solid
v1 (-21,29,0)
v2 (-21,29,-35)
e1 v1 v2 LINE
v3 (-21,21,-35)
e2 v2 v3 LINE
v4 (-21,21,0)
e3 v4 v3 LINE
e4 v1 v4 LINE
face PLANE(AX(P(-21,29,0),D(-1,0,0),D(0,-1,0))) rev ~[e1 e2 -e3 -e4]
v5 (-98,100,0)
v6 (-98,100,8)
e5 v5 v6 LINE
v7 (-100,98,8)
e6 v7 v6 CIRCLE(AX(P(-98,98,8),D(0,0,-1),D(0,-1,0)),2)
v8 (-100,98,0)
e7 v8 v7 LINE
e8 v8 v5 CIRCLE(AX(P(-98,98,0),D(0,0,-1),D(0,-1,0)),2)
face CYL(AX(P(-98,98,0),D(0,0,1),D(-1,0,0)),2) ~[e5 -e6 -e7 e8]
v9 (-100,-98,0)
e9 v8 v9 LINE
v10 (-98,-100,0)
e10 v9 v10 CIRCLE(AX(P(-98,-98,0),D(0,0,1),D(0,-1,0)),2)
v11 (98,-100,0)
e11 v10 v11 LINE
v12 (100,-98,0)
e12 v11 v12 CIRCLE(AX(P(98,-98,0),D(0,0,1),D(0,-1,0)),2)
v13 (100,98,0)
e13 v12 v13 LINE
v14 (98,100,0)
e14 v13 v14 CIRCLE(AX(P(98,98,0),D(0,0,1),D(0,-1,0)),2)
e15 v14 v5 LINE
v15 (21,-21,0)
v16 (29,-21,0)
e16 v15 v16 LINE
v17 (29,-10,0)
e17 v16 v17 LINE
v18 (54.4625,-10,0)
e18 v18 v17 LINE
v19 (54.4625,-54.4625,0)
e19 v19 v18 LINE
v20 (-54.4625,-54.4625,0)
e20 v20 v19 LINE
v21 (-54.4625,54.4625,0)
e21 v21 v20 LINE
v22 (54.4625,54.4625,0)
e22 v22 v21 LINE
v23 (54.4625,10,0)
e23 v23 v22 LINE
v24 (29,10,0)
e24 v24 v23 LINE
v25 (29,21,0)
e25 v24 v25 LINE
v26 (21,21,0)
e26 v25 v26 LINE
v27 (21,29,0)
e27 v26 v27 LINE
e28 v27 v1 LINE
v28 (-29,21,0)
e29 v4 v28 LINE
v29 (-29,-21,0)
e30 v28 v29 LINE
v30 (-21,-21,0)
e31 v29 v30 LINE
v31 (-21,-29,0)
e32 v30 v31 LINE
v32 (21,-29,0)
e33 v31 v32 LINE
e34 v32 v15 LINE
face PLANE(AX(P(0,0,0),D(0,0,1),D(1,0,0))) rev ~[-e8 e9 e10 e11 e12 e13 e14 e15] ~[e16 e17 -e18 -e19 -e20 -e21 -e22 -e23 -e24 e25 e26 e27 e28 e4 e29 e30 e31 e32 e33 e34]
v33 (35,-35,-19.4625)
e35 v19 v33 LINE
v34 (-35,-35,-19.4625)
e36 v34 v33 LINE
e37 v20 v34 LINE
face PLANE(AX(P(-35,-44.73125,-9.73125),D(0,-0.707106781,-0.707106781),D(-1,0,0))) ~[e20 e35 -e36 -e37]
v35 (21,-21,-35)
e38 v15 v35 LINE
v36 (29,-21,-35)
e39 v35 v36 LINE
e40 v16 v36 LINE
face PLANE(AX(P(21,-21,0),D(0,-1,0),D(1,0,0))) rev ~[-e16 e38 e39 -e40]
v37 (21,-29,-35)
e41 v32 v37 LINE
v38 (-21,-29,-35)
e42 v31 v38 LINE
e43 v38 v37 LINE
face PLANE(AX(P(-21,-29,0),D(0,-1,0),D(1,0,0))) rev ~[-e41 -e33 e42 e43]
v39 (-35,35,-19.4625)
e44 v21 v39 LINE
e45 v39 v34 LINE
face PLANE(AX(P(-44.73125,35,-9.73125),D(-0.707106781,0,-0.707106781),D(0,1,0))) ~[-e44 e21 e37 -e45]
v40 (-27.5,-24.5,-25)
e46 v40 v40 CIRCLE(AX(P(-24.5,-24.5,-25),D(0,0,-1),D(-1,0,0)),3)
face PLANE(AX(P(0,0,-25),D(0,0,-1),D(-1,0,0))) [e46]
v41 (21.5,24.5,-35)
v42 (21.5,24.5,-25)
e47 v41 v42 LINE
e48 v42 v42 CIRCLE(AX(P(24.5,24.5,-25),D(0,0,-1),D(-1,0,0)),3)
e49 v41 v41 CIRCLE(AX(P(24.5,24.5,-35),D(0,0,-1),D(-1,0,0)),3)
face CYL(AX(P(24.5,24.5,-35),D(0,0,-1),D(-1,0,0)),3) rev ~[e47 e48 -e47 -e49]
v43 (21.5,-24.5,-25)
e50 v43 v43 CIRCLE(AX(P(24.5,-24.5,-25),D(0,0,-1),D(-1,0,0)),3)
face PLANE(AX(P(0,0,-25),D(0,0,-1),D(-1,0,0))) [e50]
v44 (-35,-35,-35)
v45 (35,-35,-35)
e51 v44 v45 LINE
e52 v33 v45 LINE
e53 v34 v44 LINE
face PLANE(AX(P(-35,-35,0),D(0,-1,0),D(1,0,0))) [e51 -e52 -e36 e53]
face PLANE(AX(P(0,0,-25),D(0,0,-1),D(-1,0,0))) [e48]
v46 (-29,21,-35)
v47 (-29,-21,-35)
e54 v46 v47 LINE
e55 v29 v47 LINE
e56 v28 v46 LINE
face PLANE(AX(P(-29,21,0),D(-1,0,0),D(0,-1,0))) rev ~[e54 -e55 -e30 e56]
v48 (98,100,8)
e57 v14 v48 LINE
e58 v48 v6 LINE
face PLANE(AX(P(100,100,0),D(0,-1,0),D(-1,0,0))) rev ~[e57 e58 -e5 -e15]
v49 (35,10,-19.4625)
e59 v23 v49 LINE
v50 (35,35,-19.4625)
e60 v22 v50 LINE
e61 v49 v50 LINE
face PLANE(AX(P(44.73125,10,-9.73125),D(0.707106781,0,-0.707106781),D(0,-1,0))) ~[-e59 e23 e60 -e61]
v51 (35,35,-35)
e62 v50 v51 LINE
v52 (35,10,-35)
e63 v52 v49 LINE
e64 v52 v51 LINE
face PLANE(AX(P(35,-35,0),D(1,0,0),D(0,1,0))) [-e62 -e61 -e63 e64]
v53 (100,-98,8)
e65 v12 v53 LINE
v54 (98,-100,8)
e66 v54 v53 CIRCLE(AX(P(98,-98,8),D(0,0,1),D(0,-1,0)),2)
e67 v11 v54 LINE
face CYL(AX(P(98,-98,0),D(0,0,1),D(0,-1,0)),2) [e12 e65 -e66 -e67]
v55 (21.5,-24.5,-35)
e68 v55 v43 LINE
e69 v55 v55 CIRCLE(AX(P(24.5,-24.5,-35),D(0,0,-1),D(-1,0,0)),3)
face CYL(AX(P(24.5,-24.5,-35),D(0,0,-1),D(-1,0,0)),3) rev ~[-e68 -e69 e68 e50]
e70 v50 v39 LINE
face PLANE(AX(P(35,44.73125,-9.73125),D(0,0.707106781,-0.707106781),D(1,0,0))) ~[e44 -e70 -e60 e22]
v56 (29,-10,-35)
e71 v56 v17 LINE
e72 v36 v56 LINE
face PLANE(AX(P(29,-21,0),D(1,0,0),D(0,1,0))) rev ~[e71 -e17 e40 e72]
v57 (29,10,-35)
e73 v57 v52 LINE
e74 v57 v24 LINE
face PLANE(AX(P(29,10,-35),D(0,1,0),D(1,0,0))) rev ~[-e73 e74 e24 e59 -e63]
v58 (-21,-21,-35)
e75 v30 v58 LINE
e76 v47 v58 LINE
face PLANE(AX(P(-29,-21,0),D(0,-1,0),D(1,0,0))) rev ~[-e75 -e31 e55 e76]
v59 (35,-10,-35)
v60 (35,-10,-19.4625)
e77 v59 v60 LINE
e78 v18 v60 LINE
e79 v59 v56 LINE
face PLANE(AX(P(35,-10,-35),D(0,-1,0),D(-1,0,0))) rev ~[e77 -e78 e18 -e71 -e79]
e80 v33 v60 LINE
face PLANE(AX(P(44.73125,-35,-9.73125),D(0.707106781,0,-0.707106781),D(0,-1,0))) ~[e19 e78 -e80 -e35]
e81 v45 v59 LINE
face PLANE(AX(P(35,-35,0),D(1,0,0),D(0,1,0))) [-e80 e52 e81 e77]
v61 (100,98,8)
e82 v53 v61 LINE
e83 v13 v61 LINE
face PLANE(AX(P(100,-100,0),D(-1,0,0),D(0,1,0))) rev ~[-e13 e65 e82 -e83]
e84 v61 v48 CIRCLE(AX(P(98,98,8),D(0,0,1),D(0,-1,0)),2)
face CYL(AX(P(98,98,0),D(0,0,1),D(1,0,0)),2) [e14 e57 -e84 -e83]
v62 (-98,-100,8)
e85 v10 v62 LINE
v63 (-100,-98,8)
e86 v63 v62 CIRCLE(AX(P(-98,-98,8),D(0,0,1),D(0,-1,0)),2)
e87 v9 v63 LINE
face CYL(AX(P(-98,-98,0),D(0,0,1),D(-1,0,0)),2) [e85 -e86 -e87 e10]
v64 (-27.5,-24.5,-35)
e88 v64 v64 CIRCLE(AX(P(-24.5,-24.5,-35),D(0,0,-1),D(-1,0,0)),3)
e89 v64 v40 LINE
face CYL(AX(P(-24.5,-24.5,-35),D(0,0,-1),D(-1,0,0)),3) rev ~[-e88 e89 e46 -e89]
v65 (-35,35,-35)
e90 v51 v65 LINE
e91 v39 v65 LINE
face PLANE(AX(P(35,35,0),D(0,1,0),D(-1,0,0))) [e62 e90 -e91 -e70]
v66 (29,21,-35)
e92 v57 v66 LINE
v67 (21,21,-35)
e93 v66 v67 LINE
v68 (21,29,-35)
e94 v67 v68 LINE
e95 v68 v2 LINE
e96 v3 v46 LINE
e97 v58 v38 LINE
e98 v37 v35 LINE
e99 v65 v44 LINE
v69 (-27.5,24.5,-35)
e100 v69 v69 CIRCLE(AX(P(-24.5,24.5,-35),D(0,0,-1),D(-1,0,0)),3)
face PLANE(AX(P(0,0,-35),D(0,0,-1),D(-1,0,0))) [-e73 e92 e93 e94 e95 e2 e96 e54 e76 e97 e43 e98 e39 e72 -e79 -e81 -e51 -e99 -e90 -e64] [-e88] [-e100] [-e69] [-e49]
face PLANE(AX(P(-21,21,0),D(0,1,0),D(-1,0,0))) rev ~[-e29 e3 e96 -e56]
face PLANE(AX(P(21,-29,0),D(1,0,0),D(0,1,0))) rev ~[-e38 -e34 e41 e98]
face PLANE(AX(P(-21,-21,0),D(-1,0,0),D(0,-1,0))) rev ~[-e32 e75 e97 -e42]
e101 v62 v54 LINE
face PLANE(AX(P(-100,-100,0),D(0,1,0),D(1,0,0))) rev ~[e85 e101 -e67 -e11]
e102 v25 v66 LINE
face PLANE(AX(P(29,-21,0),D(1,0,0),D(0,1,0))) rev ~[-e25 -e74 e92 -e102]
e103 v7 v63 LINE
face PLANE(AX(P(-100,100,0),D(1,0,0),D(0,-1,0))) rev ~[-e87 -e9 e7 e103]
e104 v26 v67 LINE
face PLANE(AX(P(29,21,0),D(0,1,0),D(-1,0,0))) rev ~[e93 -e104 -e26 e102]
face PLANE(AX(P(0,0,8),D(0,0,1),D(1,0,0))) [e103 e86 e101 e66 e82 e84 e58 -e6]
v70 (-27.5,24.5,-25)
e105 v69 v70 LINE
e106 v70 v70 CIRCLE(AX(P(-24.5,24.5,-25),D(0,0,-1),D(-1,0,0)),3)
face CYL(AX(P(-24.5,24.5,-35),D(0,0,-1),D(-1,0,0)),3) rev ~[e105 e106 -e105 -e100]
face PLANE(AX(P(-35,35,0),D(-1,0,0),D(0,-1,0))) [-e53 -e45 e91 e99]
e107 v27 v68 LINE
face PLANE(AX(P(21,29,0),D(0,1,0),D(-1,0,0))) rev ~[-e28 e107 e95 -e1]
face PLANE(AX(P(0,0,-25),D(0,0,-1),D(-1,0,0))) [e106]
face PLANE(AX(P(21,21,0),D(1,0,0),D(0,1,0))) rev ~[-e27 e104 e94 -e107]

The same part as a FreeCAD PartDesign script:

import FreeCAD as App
import Part
import Sketcher


def edges_at(feature, points):
    """Names of the edges that pass closest to the given points."""
    edges = feature.Shape.Edges
    near = lambda p: min(range(len(edges)), key=lambda i: edges[i].distToShape(Part.Vertex(*p))[0])
    return sorted({f"Edge{near(p) + 1}" for p in points})


def add_polygon(sketch, points):
    """Adds a closed chain of lines whose ends are joined by coincident constraints."""
    first, n = sketch.GeometryCount, len(points)
    for a, b in zip(points, points[1:] + points[:1]):
        sketch.addGeometry(Part.LineSegment(App.Vector(*a, 0), App.Vector(*b, 0)), False)
    for i in range(n):
        sketch.addConstraint(Sketcher.Constraint("Coincident", first + i, 2, first + (i + 1) % n, 1))

doc = App.newDocument("Part")
body = doc.addObject("PartDesign::Body", "Body")

sketch1 = body.newObject("Sketcher::SketchObject", "Sketch")
sketch1.AttachmentSupport = (doc.getObject("XY_Plane"), [""])
sketch1.MapMode = "FlatFace"
add_polygon(sketch1, [(-100, 100), (-100, -100), (100, -100), (100, 100)])
sketch1.addConstraint(Sketcher.Constraint("Vertical", 0))
sketch1.addConstraint(Sketcher.Constraint("Horizontal", 1))
sketch1.addConstraint(Sketcher.Constraint("Vertical", 2))
sketch1.addConstraint(Sketcher.Constraint("Horizontal", 3))
sketch1.addConstraint(Sketcher.Constraint("Symmetric", 0, 2, 2, 2, -1, 1))
sketch1.addConstraint(Sketcher.Constraint("Equal", 3, 0))
sketch1.addConstraint(Sketcher.Constraint("DistanceX", 1, 1, 1, 2, 200.0))
pad1 = body.newObject("PartDesign::Pad", "Pad")
pad1.Profile = sketch1
pad1.Length = 8

sketch2 = body.newObject("Sketcher::SketchObject", "Sketch001")
sketch2.AttachmentSupport = (doc.getObject("XY_Plane"), [""])
sketch2.MapMode = "FlatFace"
add_polygon(sketch2, [(-35, 35), (35, 35), (35, -35), (-35, -35)])
add_polygon(sketch2, [(-21, -29), (21, -29), (21, -21), (29, -21), (29, 21), (21, 21), (21, 29), (-21, 29), (-21, 21), (-29, 21), (-29, -21), (-21, -21)])
sketch2.addConstraint(Sketcher.Constraint("Horizontal", 0))
sketch2.addConstraint(Sketcher.Constraint("Vertical", 1))
sketch2.addConstraint(Sketcher.Constraint("Horizontal", 2))
sketch2.addConstraint(Sketcher.Constraint("Vertical", 3))
sketch2.addConstraint(Sketcher.Constraint("Horizontal", 4))
sketch2.addConstraint(Sketcher.Constraint("Vertical", 5))
sketch2.addConstraint(Sketcher.Constraint("Horizontal", 6))
sketch2.addConstraint(Sketcher.Constraint("Vertical", 7))
sketch2.addConstraint(Sketcher.Constraint("Horizontal", 8))
sketch2.addConstraint(Sketcher.Constraint("Vertical", 9))
sketch2.addConstraint(Sketcher.Constraint("Horizontal", 10))
sketch2.addConstraint(Sketcher.Constraint("Vertical", 11))
sketch2.addConstraint(Sketcher.Constraint("Horizontal", 12))
sketch2.addConstraint(Sketcher.Constraint("Vertical", 13))
sketch2.addConstraint(Sketcher.Constraint("Horizontal", 14))
sketch2.addConstraint(Sketcher.Constraint("Vertical", 15))
sketch2.addConstraint(Sketcher.Constraint("Symmetric", 0, 2, 2, 2, -1, 1))
sketch2.addConstraint(Sketcher.Constraint("Symmetric", 4, 2, 10, 2, -1, 1))
sketch2.addConstraint(Sketcher.Constraint("Symmetric", 6, 2, 12, 2, -1, 1))
sketch2.addConstraint(Sketcher.Constraint("Symmetric", 8, 2, 14, 2, -1, 1))
sketch2.addConstraint(Sketcher.Constraint("Symmetric", 8, 2, 11, 2, -2))
sketch2.addConstraint(Sketcher.Constraint("Equal", 2, 1))
sketch2.addConstraint(Sketcher.Constraint("Equal", 14, 5))
sketch2.addConstraint(Sketcher.Constraint("Equal", 10, 7))
sketch2.addConstraint(Sketcher.Constraint("DistanceX", 0, 1, 0, 2, 70.0))
sketch2.addConstraint(Sketcher.Constraint("DistanceX", 4, 1, 4, 2, 42.0))
sketch2.addConstraint(Sketcher.Constraint("DistanceX", 6, 1, 6, 2, 8.0))
pad2 = body.newObject("PartDesign::Pad", "Pad001")
pad2.Profile = sketch2
pad2.Length = 35
pad2.Reversed = True

sketch3 = body.newObject("Sketcher::SketchObject", "Sketch002")
sketch3.AttachmentSupport = (doc.getObject("XY_Plane"), [""])
sketch3.MapMode = "FlatFace"
sketch3.AttachmentOffset = App.Placement(App.Vector(0, 0, -35), App.Rotation())
add_polygon(sketch3, [(35, 10), (35, -10), (29, -10), (29, 10)])
sketch3.addConstraint(Sketcher.Constraint("Vertical", 0))
sketch3.addConstraint(Sketcher.Constraint("Horizontal", 1))
sketch3.addConstraint(Sketcher.Constraint("Vertical", 2))
sketch3.addConstraint(Sketcher.Constraint("Horizontal", 3))
sketch3.addConstraint(Sketcher.Constraint("DistanceY", 0, 2, 0, 1, 20.0))
sketch3.addConstraint(Sketcher.Constraint("DistanceY", 0, 2, -1, 1, 10.0))
sketch3.addConstraint(Sketcher.Constraint("DistanceX", 1, 2, 1, 1, 6.0))
sketch3.addConstraint(Sketcher.Constraint("DistanceX", -1, 1, 0, 2, 35.0))
pocket1 = body.newObject("PartDesign::Pocket", "Pocket")
pocket1.Profile = sketch3
pocket1.Length = 35
pocket1.Reversed = True
doc.recompute()

chamfer = body.newObject("PartDesign::Chamfer", "Chamfer")
chamfer.Base = (pocket1, edges_at(pocket1, [
    (35, 22.5, 0),
    (35, -22.5, 0),
    (0, -35, 0),
    (-35, 0, 0),
    (0, 35, 0),
]))
chamfer.Size = 19.4625

sketch4 = body.newObject("Sketcher::SketchObject", "Sketch003")
sketch4.AttachmentSupport = (doc.getObject("XY_Plane"), [""])
sketch4.MapMode = "FlatFace"
sketch4.AttachmentOffset = App.Placement(App.Vector(0, 0, -35), App.Rotation())
sketch4.addGeometry(Part.Circle(App.Vector(-24.5, 24.5, 0), App.Vector(0, 0, 1), 3), False)
sketch4.addGeometry(Part.Circle(App.Vector(-24.5, -24.5, 0), App.Vector(0, 0, 1), 3), False)
sketch4.addGeometry(Part.Circle(App.Vector(24.5, -24.5, 0), App.Vector(0, 0, 1), 3), False)
sketch4.addGeometry(Part.Circle(App.Vector(24.5, 24.5, 0), App.Vector(0, 0, 1), 3), False)
sketch4.addConstraint(Sketcher.Constraint("Equal", 0, 1))
sketch4.addConstraint(Sketcher.Constraint("Equal", 1, 2))
sketch4.addConstraint(Sketcher.Constraint("Equal", 2, 3))
sketch4.addConstraint(Sketcher.Constraint("Symmetric", 0, 3, 2, 3, -1, 1))
sketch4.addConstraint(Sketcher.Constraint("Symmetric", 1, 3, 3, 3, -1, 1))
sketch4.addConstraint(Sketcher.Constraint("Symmetric", 1, 3, 2, 3, -2))
sketch4.addConstraint(Sketcher.Constraint("Diameter", 0, 6.0))
sketch4.addConstraint(Sketcher.Constraint("DistanceY", 1, 3, 0, 3, 49.0))
sketch4.addConstraint(Sketcher.Constraint("DistanceX", 1, 3, 2, 3, 49.0))
pocket2 = body.newObject("PartDesign::Pocket", "Pocket001")
pocket2.Profile = sketch4
pocket2.Length = 10
pocket2.Reversed = True
doc.recompute()

fillet = body.newObject("PartDesign::Fillet", "Fillet")
fillet.Base = (pocket2, edges_at(pocket2, [
    (100, 100, 4),
    (100, -100, 4),
    (-100, -100, 4),
    (-100, 100, 4),
]))
fillet.Radius = 2

doc.recompute()
